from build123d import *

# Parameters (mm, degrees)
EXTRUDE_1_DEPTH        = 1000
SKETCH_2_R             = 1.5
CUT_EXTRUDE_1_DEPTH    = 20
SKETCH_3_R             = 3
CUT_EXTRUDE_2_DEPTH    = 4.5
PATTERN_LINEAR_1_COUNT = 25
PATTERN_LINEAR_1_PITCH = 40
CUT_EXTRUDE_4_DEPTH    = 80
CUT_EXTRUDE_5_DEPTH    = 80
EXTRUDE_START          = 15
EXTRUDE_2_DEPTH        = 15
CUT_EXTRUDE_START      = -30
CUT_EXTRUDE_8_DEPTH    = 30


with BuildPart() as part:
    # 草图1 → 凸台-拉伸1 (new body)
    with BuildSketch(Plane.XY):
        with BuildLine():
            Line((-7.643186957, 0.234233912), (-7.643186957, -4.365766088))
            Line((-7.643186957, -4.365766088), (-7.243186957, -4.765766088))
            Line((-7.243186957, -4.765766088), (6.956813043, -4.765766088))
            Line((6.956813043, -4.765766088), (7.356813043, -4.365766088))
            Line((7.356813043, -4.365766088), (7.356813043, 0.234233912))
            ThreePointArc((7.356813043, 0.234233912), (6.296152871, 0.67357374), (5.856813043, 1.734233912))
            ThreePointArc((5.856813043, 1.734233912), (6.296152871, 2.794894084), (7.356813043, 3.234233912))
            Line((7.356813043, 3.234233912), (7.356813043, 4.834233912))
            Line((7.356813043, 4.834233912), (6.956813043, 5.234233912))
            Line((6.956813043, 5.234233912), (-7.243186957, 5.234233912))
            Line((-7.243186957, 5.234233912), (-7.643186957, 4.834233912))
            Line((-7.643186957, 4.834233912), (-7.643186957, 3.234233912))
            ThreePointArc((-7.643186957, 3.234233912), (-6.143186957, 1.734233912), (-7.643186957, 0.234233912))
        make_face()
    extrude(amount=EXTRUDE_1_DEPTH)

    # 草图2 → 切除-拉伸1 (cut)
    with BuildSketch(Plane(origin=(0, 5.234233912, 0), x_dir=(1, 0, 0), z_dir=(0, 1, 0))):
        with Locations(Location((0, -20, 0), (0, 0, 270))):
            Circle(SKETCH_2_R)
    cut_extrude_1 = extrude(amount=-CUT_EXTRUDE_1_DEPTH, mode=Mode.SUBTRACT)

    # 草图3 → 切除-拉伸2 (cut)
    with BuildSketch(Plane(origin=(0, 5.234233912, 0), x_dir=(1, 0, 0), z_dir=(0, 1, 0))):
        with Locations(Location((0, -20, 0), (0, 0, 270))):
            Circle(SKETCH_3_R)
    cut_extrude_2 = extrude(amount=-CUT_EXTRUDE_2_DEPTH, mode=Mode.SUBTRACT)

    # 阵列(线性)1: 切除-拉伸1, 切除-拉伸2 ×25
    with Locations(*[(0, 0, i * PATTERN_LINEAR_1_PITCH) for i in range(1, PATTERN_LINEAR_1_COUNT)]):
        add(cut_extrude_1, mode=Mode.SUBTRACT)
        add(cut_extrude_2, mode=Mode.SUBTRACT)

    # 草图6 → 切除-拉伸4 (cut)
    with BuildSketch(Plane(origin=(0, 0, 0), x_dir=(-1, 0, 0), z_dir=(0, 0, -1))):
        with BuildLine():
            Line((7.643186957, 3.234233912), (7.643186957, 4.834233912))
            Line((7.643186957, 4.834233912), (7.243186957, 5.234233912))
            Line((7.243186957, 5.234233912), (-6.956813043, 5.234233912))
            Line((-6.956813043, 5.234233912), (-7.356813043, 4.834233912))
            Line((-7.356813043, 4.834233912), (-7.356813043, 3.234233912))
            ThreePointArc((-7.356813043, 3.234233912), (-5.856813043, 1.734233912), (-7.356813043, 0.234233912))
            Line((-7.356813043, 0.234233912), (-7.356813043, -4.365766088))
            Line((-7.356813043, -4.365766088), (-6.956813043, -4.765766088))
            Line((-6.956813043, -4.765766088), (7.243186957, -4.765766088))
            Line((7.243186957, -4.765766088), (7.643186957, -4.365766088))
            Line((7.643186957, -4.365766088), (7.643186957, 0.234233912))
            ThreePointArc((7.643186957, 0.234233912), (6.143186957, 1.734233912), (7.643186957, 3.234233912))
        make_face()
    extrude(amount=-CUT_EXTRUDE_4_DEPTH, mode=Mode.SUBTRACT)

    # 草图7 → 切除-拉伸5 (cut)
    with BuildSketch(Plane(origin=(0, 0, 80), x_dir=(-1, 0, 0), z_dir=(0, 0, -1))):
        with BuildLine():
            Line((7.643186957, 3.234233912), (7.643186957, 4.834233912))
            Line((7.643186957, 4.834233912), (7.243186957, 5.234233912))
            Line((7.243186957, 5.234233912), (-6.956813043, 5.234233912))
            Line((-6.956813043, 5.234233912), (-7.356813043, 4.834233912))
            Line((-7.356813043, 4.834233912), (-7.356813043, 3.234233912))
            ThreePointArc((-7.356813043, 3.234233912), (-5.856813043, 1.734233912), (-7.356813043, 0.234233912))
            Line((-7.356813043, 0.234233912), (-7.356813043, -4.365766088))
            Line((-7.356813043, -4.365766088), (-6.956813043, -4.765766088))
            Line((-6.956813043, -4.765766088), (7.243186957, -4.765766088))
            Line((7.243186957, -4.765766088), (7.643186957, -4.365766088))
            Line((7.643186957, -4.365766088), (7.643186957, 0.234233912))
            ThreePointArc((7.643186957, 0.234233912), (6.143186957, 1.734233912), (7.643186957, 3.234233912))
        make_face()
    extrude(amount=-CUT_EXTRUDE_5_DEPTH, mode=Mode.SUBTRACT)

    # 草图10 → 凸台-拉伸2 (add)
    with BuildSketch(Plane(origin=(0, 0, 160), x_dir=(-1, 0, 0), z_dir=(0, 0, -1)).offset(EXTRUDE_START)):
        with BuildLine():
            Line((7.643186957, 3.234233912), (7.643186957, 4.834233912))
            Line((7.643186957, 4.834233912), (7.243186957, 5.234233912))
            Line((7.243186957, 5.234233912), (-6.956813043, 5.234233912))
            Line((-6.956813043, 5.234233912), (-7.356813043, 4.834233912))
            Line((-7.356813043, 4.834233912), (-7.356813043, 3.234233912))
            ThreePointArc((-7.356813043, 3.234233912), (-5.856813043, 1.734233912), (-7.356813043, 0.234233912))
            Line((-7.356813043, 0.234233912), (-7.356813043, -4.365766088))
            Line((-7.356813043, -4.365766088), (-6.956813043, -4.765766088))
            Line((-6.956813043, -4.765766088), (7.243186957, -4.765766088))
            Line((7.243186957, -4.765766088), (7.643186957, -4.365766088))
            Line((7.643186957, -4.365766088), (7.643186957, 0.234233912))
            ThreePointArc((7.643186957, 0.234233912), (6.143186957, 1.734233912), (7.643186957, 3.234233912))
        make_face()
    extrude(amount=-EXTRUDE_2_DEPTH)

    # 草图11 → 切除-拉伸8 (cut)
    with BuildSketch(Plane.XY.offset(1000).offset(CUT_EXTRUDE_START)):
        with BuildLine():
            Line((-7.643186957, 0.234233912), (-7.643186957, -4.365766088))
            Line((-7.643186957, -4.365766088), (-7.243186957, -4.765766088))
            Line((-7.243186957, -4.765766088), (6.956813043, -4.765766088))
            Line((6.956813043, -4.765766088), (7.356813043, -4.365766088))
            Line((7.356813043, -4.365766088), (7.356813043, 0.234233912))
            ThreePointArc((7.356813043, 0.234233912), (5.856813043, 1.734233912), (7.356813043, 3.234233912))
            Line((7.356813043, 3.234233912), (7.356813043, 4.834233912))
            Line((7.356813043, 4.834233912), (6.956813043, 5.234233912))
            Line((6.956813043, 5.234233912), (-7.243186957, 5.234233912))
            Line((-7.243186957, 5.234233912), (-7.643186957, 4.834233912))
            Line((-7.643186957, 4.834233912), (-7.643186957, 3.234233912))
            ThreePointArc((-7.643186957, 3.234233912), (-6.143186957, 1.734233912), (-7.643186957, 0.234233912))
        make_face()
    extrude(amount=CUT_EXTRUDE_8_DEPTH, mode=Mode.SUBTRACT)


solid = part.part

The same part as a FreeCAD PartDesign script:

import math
import FreeCAD as App
import Part
import Sketcher

V = App.Vector

doc = App.newDocument("Part")
body = doc.addObject("PartDesign::Body", "Body")

# Sketch on XY plane
sketch1 = doc.addObject("Sketcher::SketchObject", "Sketch")
body.addObject(sketch1)
sketch1.AttachmentSupport = (doc.XY_Plane, [""])
sketch1.MapMode = "FlatFace"
sketch1.addGeometry(Part.LineSegment(V(-7.6, 0.2, 0), V(-7.6, -4.4, 0)), False)
sketch1.addGeometry(Part.LineSegment(V(-7.6, -4.4, 0), V(-7.2, -4.8, 0)), False)
sketch1.addGeometry(Part.LineSegment(V(-7.2, -4.8, 0), V(7, -4.8, 0)), False)
sketch1.addGeometry(Part.LineSegment(V(7, -4.8, 0), V(7.4, -4.4, 0)), False)
sketch1.addGeometry(Part.LineSegment(V(7.4, -4.4, 0), V(7.4, 0.2, 0)), False)
sketch1.addGeometry(Part.ArcOfCircle(Part.Circle(V(7.4, 1.7, 0), V(0, 0, 1), 1.5), math.radians(180), math.radians(270)), False)
sketch1.addGeometry(Part.ArcOfCircle(Part.Circle(V(7.4, 1.7, 0), V(0, 0, 1), 1.5), math.radians(90), math.radians(180)), False)
sketch1.addGeometry(Part.LineSegment(V(7.4, 3.2, 0), V(7.4, 4.8, 0)), False)
sketch1.addGeometry(Part.LineSegment(V(7.4, 4.8, 0), V(7, 5.2, 0)), False)
sketch1.addGeometry(Part.LineSegment(V(7, 5.2, 0), V(-7.2, 5.2, 0)), False)
sketch1.addGeometry(Part.LineSegment(V(-7.2, 5.2, 0), V(-7.6, 4.8, 0)), False)
sketch1.addGeometry(Part.LineSegment(V(-7.6, 4.8, 0), V(-7.6, 3.2, 0)), False)
sketch1.addGeometry(Part.ArcOfCircle(Part.Circle(V(-7.6, 1.7, 0), V(0, 0, 1), 1.5), math.radians(-90), math.radians(90)), False)
sketch1.addConstraint(Sketcher.Constraint("Coincident", 0, 2, 1, 1))
sketch1.addConstraint(Sketcher.Constraint("Coincident", 1, 2, 2, 1))
sketch1.addConstraint(Sketcher.Constraint("Coincident", 2, 2, 3, 1))
sketch1.addConstraint(Sketcher.Constraint("Coincident", 3, 2, 4, 1))
sketch1.addConstraint(Sketcher.Constraint("Coincident", 4, 2, 5, 2))
sketch1.addConstraint(Sketcher.Constraint("Tangent", 5, 1, 6, 2))
sketch1.addConstraint(Sketcher.Constraint("Coincident", 6, 1, 7, 1))
sketch1.addConstraint(Sketcher.Constraint("Coincident", 7, 2, 8, 1))
sketch1.addConstraint(Sketcher.Constraint("Coincident", 8, 2, 9, 1))
sketch1.addConstraint(Sketcher.Constraint("Coincident", 9, 2, 10, 1))
sketch1.addConstraint(Sketcher.Constraint("Coincident", 10, 2, 11, 1))
sketch1.addConstraint(Sketcher.Constraint("Coincident", 11, 2, 12, 2))
sketch1.addConstraint(Sketcher.Constraint("Coincident", 12, 1, 0, 1))
sketch1.addConstraint(Sketcher.Constraint("Vertical", 0))
sketch1.addConstraint(Sketcher.Constraint("Horizontal", 2))
sketch1.addConstraint(Sketcher.Constraint("Vertical", 4))
sketch1.addConstraint(Sketcher.Constraint("Vertical", 7))
sketch1.addConstraint(Sketcher.Constraint("Horizontal", 9))
sketch1.addConstraint(Sketcher.Constraint("Vertical", 11))
sketch1.addConstraint(Sketcher.Constraint("Equal", 5, 6))
sketch1.addConstraint(Sketcher.Constraint("Equal", 6, 12))
sketch1.addConstraint(Sketcher.Constraint("Perpendicular", 1, 3))
sketch1.addConstraint(Sketcher.Constraint("Perpendicular", 3, 8))
sketch1.addConstraint(Sketcher.Constraint("Perpendicular", 8, 10))
sketch1.addConstraint(Sketcher.Constraint("Horizontal", 6, 3, 12, 3))
sketch1.addConstraint(Sketcher.Constraint("Horizontal", 0, 2, 3, 2))
sketch1.addConstraint(Sketcher.Constraint("Horizontal", 12, 3, 5, 1))
sketch1.addConstraint(Sketcher.Constraint("Horizontal", 7, 2, 10, 2))
sketch1.addConstraint(Sketcher.Constraint("Vertical", 12, 3, 0, 2))
sketch1.addConstraint(Sketcher.Constraint("Vertical", 6, 3, 3, 2))
sketch1.addConstraint(Sketcher.Constraint("Vertical", 4, 2, 6, 1))
sketch1.addConstraint(Sketcher.Constraint("Vertical", 2, 2, 8, 2))
sketch1.addConstraint(Sketcher.Constraint("Vertical", 1, 2, 9, 2))
sketch1.addConstraint(Sketcher.Constraint("Vertical", 0, 2, 10, 2))
sketch1.addConstraint(Sketcher.Constraint("Radius", 5, 1.5))
sketch1.addConstraint(Sketcher.Constraint("DistanceX", 2, 1, 2, 2, 14.2))
sketch1.addConstraint(Sketcher.Constraint("DistanceY", 0, 2, 0, 1, 4.6))
sketch1.addConstraint(Sketcher.Constraint("DistanceY", 7, 1, 7, 2, 1.6))
sketch1.addConstraint(Sketcher.Constraint("DistanceX", 12, 3, 5, 3, 15.0))
sketch1.addConstraint(Sketcher.Constraint("DistanceX", -1, 1, 5, 3, 7.356813))
sketch1.addConstraint(Sketcher.Constraint("DistanceY", -1, 1, 5, 3, 1.734234))
pad1 = doc.addObject("PartDesign::Pad", "Pad")
body.addObject(pad1)
pad1.Profile = sketch1
pad1.Length = 1000

# Sketch on XZ plane
sketch2 = doc.addObject("Sketcher::SketchObject", "Sketch001")
body.addObject(sketch2)
sketch2.AttachmentSupport = (doc.XZ_Plane, [""])
sketch2.MapMode = "FlatFace"
sketch2.AttachmentOffset = App.Placement(V(0, 0, -5.234234), App.Rotation())
sketch2.addGeometry(Part.Circle(V(0, 20, 0), V(0, 0, 1), 1.5), False)
sketch2.addConstraint(Sketcher.Constraint("PointOnObject", 0, 3, -2))
sketch2.addConstraint(Sketcher.Constraint("Diameter", 0, 3.0))
sketch2.addConstraint(Sketcher.Constraint("DistanceY", -1, 1, 0, 3, 20.0))
pocket1 = doc.addObject("PartDesign::Pocket", "Pocket")
body.addObject(pocket1)
pocket1.Profile = sketch2
pocket1.Length = 20
pocket1.Reversed = True

# Sketch on XZ plane
sketch3 = doc.addObject("Sketcher::SketchObject", "Sketch002")
body.addObject(sketch3)
sketch3.AttachmentSupport = (doc.XZ_Plane, [""])
sketch3.MapMode = "FlatFace"
sketch3.AttachmentOffset = App.Placement(V(0, 0, -5.234234), App.Rotation())
sketch3.addGeometry(Part.Circle(V(0, 20, 0), V(0, 0, 1), 3), False)
sketch3.addConstraint(Sketcher.Constraint("PointOnObject", 0, 3, -2))
sketch3.addConstraint(Sketcher.Constraint("Diameter", 0, 6.0))
sketch3.addConstraint(Sketcher.Constraint("DistanceY", -1, 1, 0, 3, 20.0))
pocket2 = doc.addObject("PartDesign::Pocket", "Pocket001")
body.addObject(pocket2)
pocket2.Profile = sketch3
pocket2.Length = 4.5
pocket2.Reversed = True
doc.recompute()

linearpattern = doc.addObject("PartDesign::LinearPattern", "LinearPattern")
body.addObject(linearpattern)
linearpattern.Originals = [pocket1, pocket2]
linearpattern.Direction = (doc.Z_Axis, [""])
linearpattern.Mode = "offset"
linearpattern.Offset = 40
linearpattern.Occurrences = 25
body.Tip = linearpattern

# Sketch on XY plane
sketch4 = doc.addObject("Sketcher::SketchObject", "Sketch003")
body.addObject(sketch4)
sketch4.AttachmentSupport = (doc.XY_Plane, [""])
sketch4.MapMode = "FlatFace"
sketch4.addGeometry(Part.LineSegment(V(-7.6, 3.2, 0), V(-7.6, 4.8, 0)), False)
sketch4.addGeometry(Part.LineSegment(V(-7.6, 4.8, 0), V(-7.2, 5.2, 0)), False)
sketch4.addGeometry(Part.LineSegment(V(-7.2, 5.2, 0), V(7, 5.2, 0)), False)
sketch4.addGeometry(Part.LineSegment(V(7, 5.2, 0), V(7.4, 4.8, 0)), False)
sketch4.addGeometry(Part.LineSegment(V(7.4, 4.8, 0), V(7.4, 3.2, 0)), False)
sketch4.addGeometry(Part.ArcOfCircle(Part.Circle(V(7.4, 1.7, 0), V(0, 0, 1), 1.5), math.radians(90), math.radians(270)), False)
sketch4.addGeometry(Part.LineSegment(V(7.4, 0.2, 0), V(7.4, -4.4, 0)), False)
sketch4.addGeometry(Part.LineSegment(V(7.4, -4.4, 0), V(7, -4.8, 0)), False)
sketch4.addGeometry(Part.LineSegment(V(7, -4.8, 0), V(-7.2, -4.8, 0)), False)
sketch4.addGeometry(Part.LineSegment(V(-7.2, -4.8, 0), V(-7.6, -4.4, 0)), False)
sketch4.addGeometry(Part.LineSegment(V(-7.6, -4.4, 0), V(-7.6, 0.2, 0)), False)
sketch4.addGeometry(Part.ArcOfCircle(Part.Circle(V(-7.6, 1.7, 0), V(0, 0, 1), 1.5), math.radians(-90), math.radians(90)), False)
sketch4.addConstraint(Sketcher.Constraint("Coincident", 0, 2, 1, 1))
sketch4.addConstraint(Sketcher.Constraint("Coincident", 1, 2, 2, 1))
sketch4.addConstraint(Sketcher.Constraint("Coincident", 2, 2, 3, 1))
sketch4.addConstraint(Sketcher.Constraint("Coincident", 3, 2, 4, 1))
sketch4.addConstraint(Sketcher.Constraint("Coincident", 4, 2, 5, 1))
sketch4.addConstraint(Sketcher.Constraint("Coincident", 5, 2, 6, 1))
sketch4.addConstraint(Sketcher.Constraint("Coincident", 6, 2, 7, 1))
sketch4.addConstraint(Sketcher.Constraint("Coincident", 7, 2, 8, 1))
sketch4.addConstraint(Sketcher.Constraint("Coincident", 8, 2, 9, 1))
sketch4.addConstraint(Sketcher.Constraint("Coincident", 9, 2, 10, 1))
sketch4.addConstraint(Sketcher.Constraint("Coincident", 10, 2, 11, 1))
sketch4.addConstraint(Sketcher.Constraint("Coincident", 11, 2, 0, 1))
sketch4.addConstraint(Sketcher.Constraint("Vertical", 0))
sketch4.addConstraint(Sketcher.Constraint("Horizontal", 2))
sketch4.addConstraint(Sketcher.Constraint("Vertical", 4))
sketch4.addConstraint(Sketcher.Constraint("Vertical", 6))
sketch4.addConstraint(Sketcher.Constraint("Horizontal", 8))
sketch4.addConstraint(Sketcher.Constraint("Vertical", 10))
sketch4.addConstraint(Sketcher.Constraint("Equal", 5, 11))
sketch4.addConstraint(Sketcher.Constraint("Perpendicular", 1, 3))
sketch4.addConstraint(Sketcher.Constraint("Perpendicular", 3, 7))
sketch4.addConstraint(Sketcher.Constraint("Perpendicular", 7, 9))
sketch4.addConstraint(Sketcher.Constraint("Horizontal", 5, 3, 11, 3))
sketch4.addConstraint(Sketcher.Constraint("Horizontal", 0, 2, 3, 2))
sketch4.addConstraint(Sketcher.Constraint("Horizontal", 6, 2, 9, 2))
sketch4.addConstraint(Sketcher.Constraint("Vertical", 11, 3, 0, 2))
sketch4.addConstraint(Sketcher.Constraint("Vertical", 5, 3, 3, 2))
sketch4.addConstraint(Sketcher.Constraint("Vertical", 4, 2, 5, 2))
sketch4.addConstraint(Sketcher.Constraint("Vertical", 2, 2, 7, 2))
sketch4.addConstraint(Sketcher.Constraint("Vertical", 1, 2, 8, 2))
sketch4.addConstraint(Sketcher.Constraint("Vertical", 0, 2, 9, 2))
sketch4.addConstraint(Sketcher.Constraint("Radius", 5, 1.5))
sketch4.addConstraint(Sketcher.Constraint("DistanceX", 2, 1, 2, 2, 14.2))
sketch4.addConstraint(Sketcher.Constraint("DistanceY", 0, 1, 0, 2, 1.6))
sketch4.addConstraint(Sketcher.Constraint("DistanceY", 6, 2, 6, 1, 4.6))
sketch4.addConstraint(Sketcher.Constraint("DistanceX", 11, 3, 5, 3, 15.0))
sketch4.addConstraint(Sketcher.Constraint("DistanceX", -1, 1, 5, 3, 7.356813))
sketch4.addConstraint(Sketcher.Constraint("DistanceY", -1, 1, 5, 3, 1.734234))
pocket3 = doc.addObject("PartDesign::Pocket", "Pocket002")
body.addObject(pocket3)
pocket3.Profile = sketch4
pocket3.Length = 80
pocket3.Reversed = True

# Sketch on XY plane
sketch5 = doc.addObject("Sketcher::SketchObject", "Sketch004")
body.addObject(sketch5)
sketch5.AttachmentSupport = (doc.XY_Plane, [""])
sketch5.MapMode = "FlatFace"
sketch5.AttachmentOffset = App.Placement(V(0, 0, 80), App.Rotation())
sketch5.addGeometry(Part.LineSegment(V(-7.6, 3.2, 0), V(-7.6, 4.8, 0)), False)
sketch5.addGeometry(Part.LineSegment(V(-7.6, 4.8, 0), V(-7.2, 5.2, 0)), False)
sketch5.addGeometry(Part.LineSegment(V(-7.2, 5.2, 0), V(7, 5.2, 0)), False)
sketch5.addGeometry(Part.LineSegment(V(7, 5.2, 0), V(7.4, 4.8, 0)), False)
sketch5.addGeometry(Part.LineSegment(V(7.4, 4.8, 0), V(7.4, 3.2, 0)), False)
sketch5.addGeometry(Part.ArcOfCircle(Part.Circle(V(7.4, 1.7, 0), V(0, 0, 1), 1.5), math.radians(90), math.radians(270)), False)
sketch5.addGeometry(Part.LineSegment(V(7.4, 0.2, 0), V(7.4, -4.4, 0)), False)
sketch5.addGeometry(Part.LineSegment(V(7.4, -4.4, 0), V(7, -4.8, 0)), False)
sketch5.addGeometry(Part.LineSegment(V(7, -4.8, 0), V(-7.2, -4.8, 0)), False)
sketch5.addGeometry(Part.LineSegment(V(-7.2, -4.8, 0), V(-7.6, -4.4, 0)), False)
sketch5.addGeometry(Part.LineSegment(V(-7.6, -4.4, 0), V(-7.6, 0.2, 0)), False)
sketch5.addGeometry(Part.ArcOfCircle(Part.Circle(V(-7.6, 1.7, 0), V(0, 0, 1), 1.5), math.radians(-90), math.radians(90)), False)
sketch5.addConstraint(Sketcher.Constraint("Coincident", 0, 2, 1, 1))
sketch5.addConstraint(Sketcher.Constraint("Coincident", 1, 2, 2, 1))
sketch5.addConstraint(Sketcher.Constraint("Coincident", 2, 2, 3, 1))
sketch5.addConstraint(Sketcher.Constraint("Coincident", 3, 2, 4, 1))
sketch5.addConstraint(Sketcher.Constraint("Coincident", 4, 2, 5, 1))
sketch5.addConstraint(Sketcher.Constraint("Coincident", 5, 2, 6, 1))
sketch5.addConstraint(Sketcher.Constraint("Coincident", 6, 2, 7, 1))
sketch5.addConstraint(Sketcher.Constraint("Coincident", 7, 2, 8, 1))
sketch5.addConstraint(Sketcher.Constraint("Coincident", 8, 2, 9, 1))
sketch5.addConstraint(Sketcher.Constraint("Coincident", 9, 2, 10, 1))
sketch5.addConstraint(Sketcher.Constraint("Coincident", 10, 2, 11, 1))
sketch5.addConstraint(Sketcher.Constraint("Coincident", 11, 2, 0, 1))
sketch5.addConstraint(Sketcher.Constraint("Vertical", 0))
sketch5.addConstraint(Sketcher.Constraint("Horizontal", 2))
sketch5.addConstraint(Sketcher.Constraint("Vertical", 4))
sketch5.addConstraint(Sketcher.Constraint("Vertical", 6))
sketch5.addConstraint(Sketcher.Constraint("Horizontal", 8))
sketch5.addConstraint(Sketcher.Constraint("Vertical", 10))
sketch5.addConstraint(Sketcher.Constraint("Equal", 5, 11))
sketch5.addConstraint(Sketcher.Constraint("Perpendicular", 1, 3))
sketch5.addConstraint(Sketcher.Constraint("Perpendicular", 3, 7))
sketch5.addConstraint(Sketcher.Constraint("Perpendicular", 7, 9))
sketch5.addConstraint(Sketcher.Constraint("Horizontal", 5, 3, 11, 3))
sketch5.addConstraint(Sketcher.Constraint("Horizontal", 0, 2, 3, 2))
sketch5.addConstraint(Sketcher.Constraint("Horizontal", 6, 2, 9, 2))
sketch5.addConstraint(Sketcher.Constraint("Vertical", 11, 3, 0, 2))
sketch5.addConstraint(Sketcher.Constraint("Vertical", 5, 3, 3, 2))
sketch5.addConstraint(Sketcher.Constraint("Vertical", 4, 2, 5, 2))
sketch5.addConstraint(Sketcher.Constraint("Vertical", 2, 2, 7, 2))
sketch5.addConstraint(Sketcher.Constraint("Vertical", 1, 2, 8, 2))
sketch5.addConstraint(Sketcher.Constraint("Vertical", 0, 2, 9, 2))
sketch5.addConstraint(Sketcher.Constraint("Radius", 5, 1.5))
sketch5.addConstraint(Sketcher.Constraint("DistanceX", 2, 1, 2, 2, 14.2))
sketch5.addConstraint(Sketcher.Constraint("DistanceY", 0, 1, 0, 2, 1.6))
sketch5.addConstraint(Sketcher.Constraint("DistanceY", 6, 2, 6, 1, 4.6))
sketch5.addConstraint(Sketcher.Constraint("DistanceX", 11, 3, 5, 3, 15.0))
sketch5.addConstraint(Sketcher.Constraint("DistanceX", -1, 1, 5, 3, 7.356813))
sketch5.addConstraint(Sketcher.Constraint("DistanceY", -1, 1, 5, 3, 1.734234))
pocket4 = doc.addObject("PartDesign::Pocket", "Pocket003")
body.addObject(pocket4)
pocket4.Profile = sketch5
pocket4.Length = 80
pocket4.Reversed = True

# Sketch on XY plane
sketch6 = doc.addObject("Sketcher::SketchObject", "Sketch005")
body.addObject(sketch6)
sketch6.AttachmentSupport = (doc.XY_Plane, [""])
sketch6.MapMode = "FlatFace"
sketch6.AttachmentOffset = App.Placement(V(0, 0, 145), App.Rotation())
sketch6.addGeometry(Part.LineSegment(V(-7.6, 3.2, 0), V(-7.6, 4.8, 0)), False)
sketch6.addGeometry(Part.LineSegment(V(-7.6, 4.8, 0), V(-7.2, 5.2, 0)), False)
sketch6.addGeometry(Part.LineSegment(V(-7.2, 5.2, 0), V(7, 5.2, 0)), False)
sketch6.addGeometry(Part.LineSegment(V(7, 5.2, 0), V(7.4, 4.8, 0)), False)
sketch6.addGeometry(Part.LineSegment(V(7.4, 4.8, 0), V(7.4, 3.2, 0)), False)
sketch6.addGeometry(Part.ArcOfCircle(Part.Circle(V(7.4, 1.7, 0), V(0, 0, 1), 1.5), math.radians(90), math.radians(270)), False)
sketch6.addGeometry(Part.LineSegment(V(7.4, 0.2, 0), V(7.4, -4.4, 0)), False)
sketch6.addGeometry(Part.LineSegment(V(7.4, -4.4, 0), V(7, -4.8, 0)), False)
sketch6.addGeometry(Part.LineSegment(V(7, -4.8, 0), V(-7.2, -4.8, 0)), False)
sketch6.addGeometry(Part.LineSegment(V(-7.2, -4.8, 0), V(-7.6, -4.4, 0)), False)
sketch6.addGeometry(Part.LineSegment(V(-7.6, -4.4, 0), V(-7.6, 0.2, 0)), False)
sketch6.addGeometry(Part.ArcOfCircle(Part.Circle(V(-7.6, 1.7, 0), V(0, 0, 1), 1.5), math.radians(-90), math.radians(90)), False)
sketch6.addConstraint(Sketcher.Constraint("Coincident", 0, 2, 1, 1))
sketch6.addConstraint(Sketcher.Constraint("Coincident", 1, 2, 2, 1))
sketch6.addConstraint(Sketcher.Constraint("Coincident", 2, 2, 3, 1))
sketch6.addConstraint(Sketcher.Constraint("Coincident", 3, 2, 4, 1))
sketch6.addConstraint(Sketcher.Constraint("Coincident", 4, 2, 5, 1))
sketch6.addConstraint(Sketcher.Constraint("Coincident", 5, 2, 6, 1))
sketch6.addConstraint(Sketcher.Constraint("Coincident", 6, 2, 7, 1))
sketch6.addConstraint(Sketcher.Constraint("Coincident", 7, 2, 8, 1))
sketch6.addConstraint(Sketcher.Constraint("Coincident", 8, 2, 9, 1))
sketch6.addConstraint(Sketcher.Constraint("Coincident", 9, 2, 10, 1))
sketch6.addConstraint(Sketcher.Constraint("Coincident", 10, 2, 11, 1))
sketch6.addConstraint(Sketcher.Constraint("Coincident", 11, 2, 0, 1))
sketch6.addConstraint(Sketcher.Constraint("Vertical", 0))
sketch6.addConstraint(Sketcher.Constraint("Horizontal", 2))
sketch6.addConstraint(Sketcher.Constraint("Vertical", 4))
sketch6.addConstraint(Sketcher.Constraint("Vertical", 6))
sketch6.addConstraint(Sketcher.Constraint("Horizontal", 8))
sketch6.addConstraint(Sketcher.Constraint("Vertical", 10))
sketch6.addConstraint(Sketcher.Constraint("Equal", 5, 11))
sketch6.addConstraint(Sketcher.Constraint("Perpendicular", 1, 3))
sketch6.addConstraint(Sketcher.Constraint("Perpendicular", 3, 7))
sketch6.addConstraint(Sketcher.Constraint("Perpendicular", 7, 9))
sketch6.addConstraint(Sketcher.Constraint("Horizontal", 5, 3, 11, 3))
sketch6.addConstraint(Sketcher.Constraint("Horizontal", 0, 2, 3, 2))
sketch6.addConstraint(Sketcher.Constraint("Horizontal", 6, 2, 9, 2))
sketch6.addConstraint(Sketcher.Constraint("Vertical", 11, 3, 0, 2))
sketch6.addConstraint(Sketcher.Constraint("Vertical", 5, 3, 3, 2))
sketch6.addConstraint(Sketcher.Constraint("Vertical", 4, 2, 5, 2))
sketch6.addConstraint(Sketcher.Constraint("Vertical", 2, 2, 7, 2))
sketch6.addConstraint(Sketcher.Constraint("Vertical", 1, 2, 8, 2))
sketch6.addConstraint(Sketcher.Constraint("Vertical", 0, 2, 9, 2))
sketch6.addConstraint(Sketcher.Constraint("Radius", 5, 1.5))
sketch6.addConstraint(Sketcher.Constraint("DistanceX", 2, 1, 2, 2, 14.2))
sketch6.addConstraint(Sketcher.Constraint("DistanceY", 0, 1, 0, 2, 1.6))
sketch6.addConstraint(Sketcher.Constraint("DistanceY", 6, 2, 6, 1, 4.6))
sketch6.addConstraint(Sketcher.Constraint("DistanceX", 11, 3, 5, 3, 15.0))
sketch6.addConstraint(Sketcher.Constraint("DistanceX", -1, 1, 5, 3, 7.356813))
sketch6.addConstraint(Sketcher.Constraint("DistanceY", -1, 1, 5, 3, 1.734234))
pad2 = doc.addObject("PartDesign::Pad", "Pad001")
body.addObject(pad2)
pad2.Profile = sketch6
pad2.Length = 15

# Sketch on XY plane
sketch7 = doc.addObject("Sketcher::SketchObject", "Sketch006")
body.addObject(sketch7)
sketch7.AttachmentSupport = (doc.XY_Plane, [""])
sketch7.MapMode = "FlatFace"
sketch7.AttachmentOffset = App.Placement(V(0, 0, 970), App.Rotation())
sketch7.addGeometry(Part.LineSegment(V(-7.6, 0.2, 0), V(-7.6, -4.4, 0)), False)
sketch7.addGeometry(Part.LineSegment(V(-7.6, -4.4, 0), V(-7.2, -4.8, 0)), False)
sketch7.addGeometry(Part.LineSegment(V(-7.2, -4.8, 0), V(7, -4.8, 0)), False)
sketch7.addGeometry(Part.LineSegment(V(7, -4.8, 0), V(7.4, -4.4, 0)), False)
sketch7.addGeometry(Part.LineSegment(V(7.4, -4.4, 0), V(7.4, 0.2, 0)), False)
sketch7.addGeometry(Part.ArcOfCircle(Part.Circle(V(7.4, 1.7, 0), V(0, 0, 1), 1.5), math.radians(90), math.radians(270)), False)
sketch7.addGeometry(Part.LineSegment(V(7.4, 3.2, 0), V(7.4, 4.8, 0)), False)
sketch7.addGeometry(Part.LineSegment(V(7.4, 4.8, 0), V(7, 5.2, 0)), False)
sketch7.addGeometry(Part.LineSegment(V(7, 5.2, 0), V(-7.2, 5.2, 0)), False)
sketch7.addGeometry(Part.LineSegment(V(-7.2, 5.2, 0), V(-7.6, 4.8, 0)), False)
sketch7.addGeometry(Part.LineSegment(V(-7.6, 4.8, 0), V(-7.6, 3.2, 0)), False)
sketch7.addGeometry(Part.ArcOfCircle(Part.Circle(V(-7.6, 1.7, 0), V(0, 0, 1), 1.5), math.radians(-90), math.radians(90)), False)
sketch7.addConstraint(Sketcher.Constraint("Coincident", 0, 2, 1, 1))
sketch7.addConstraint(Sketcher.Constraint("Coincident", 1, 2, 2, 1))
sketch7.addConstraint(Sketcher.Constraint("Coincident", 2, 2, 3, 1))
sketch7.addConstraint(Sketcher.Constraint("Coincident", 3, 2, 4, 1))
sketch7.addConstraint(Sketcher.Constraint("Coincident", 4, 2, 5, 2))
sketch7.addConstraint(Sketcher.Constraint("Coincident", 5, 1, 6, 1))
sketch7.addConstraint(Sketcher.Constraint("Coincident", 6, 2, 7, 1))
sketch7.addConstraint(Sketcher.Constraint("Coincident", 7, 2, 8, 1))
sketch7.addConstraint(Sketcher.Constraint("Coincident", 8, 2, 9, 1))
sketch7.addConstraint(Sketcher.Constraint("Coincident", 9, 2, 10, 1))
sketch7.addConstraint(Sketcher.Constraint("Coincident", 10, 2, 11, 2))
sketch7.addConstraint(Sketcher.Constraint("Coincident", 11, 1, 0, 1))
sketch7.addConstraint(Sketcher.Constraint("Vertical", 0))
sketch7.addConstraint(Sketcher.Constraint("Horizontal", 2))
sketch7.addConstraint(Sketcher.Constraint("Vertical", 4))
sketch7.addConstraint(Sketcher.Constraint("Vertical", 6))
sketch7.addConstraint(Sketcher.Constraint("Horizontal", 8))
sketch7.addConstraint(Sketcher.Constraint("Vertical", 10))
sketch7.addConstraint(Sketcher.Constraint("Equal", 5, 11))
sketch7.addConstraint(Sketcher.Constraint("Perpendicular", 1, 3))
sketch7.addConstraint(Sketcher.Constraint("Perpendicular", 3, 7))
sketch7.addConstraint(Sketcher.Constraint("Perpendicular", 7, 9))
sketch7.addConstraint(Sketcher.Constraint("Horizontal", 5, 3, 11, 3))
sketch7.addConstraint(Sketcher.Constraint("Horizontal", 0, 2, 3, 2))
sketch7.addConstraint(Sketcher.Constraint("Horizontal", 6, 2, 9, 2))
sketch7.addConstraint(Sketcher.Constraint("Vertical", 11, 3, 0, 2))
sketch7.addConstraint(Sketcher.Constraint("Vertical", 5, 3, 3, 2))
sketch7.addConstraint(Sketcher.Constraint("Vertical", 4, 2, 5, 1))
sketch7.addConstraint(Sketcher.Constraint("Vertical", 2, 2, 7, 2))
sketch7.addConstraint(Sketcher.Constraint("Vertical", 1, 2, 8, 2))
sketch7.addConstraint(Sketcher.Constraint("Vertical", 0, 2, 9, 2))
sketch7.addConstraint(Sketcher.Constraint("Radius", 5, 1.5))
sketch7.addConstraint(Sketcher.Constraint("DistanceX", 2, 1, 2, 2, 14.2))
sketch7.addConstraint(Sketcher.Constraint("DistanceY", 0, 2, 0, 1, 4.6))
sketch7.addConstraint(Sketcher.Constraint("DistanceY", 6, 1, 6, 2, 1.6))
sketch7.addConstraint(Sketcher.Constraint("DistanceX", 11, 3, 5, 3, 15.0))
sketch7.addConstraint(Sketcher.Constraint("DistanceX", -1, 1, 5, 3, 7.356813))
sketch7.addConstraint(Sketcher.Constraint("DistanceY", -1, 1, 5, 3, 1.734234))
pocket5 = doc.addObject("PartDesign::Pocket", "Pocket004")
body.addObject(pocket5)
pocket5.Profile = sketch7
pocket5.Length = 30
pocket5.Reversed = True

doc.recompute()
